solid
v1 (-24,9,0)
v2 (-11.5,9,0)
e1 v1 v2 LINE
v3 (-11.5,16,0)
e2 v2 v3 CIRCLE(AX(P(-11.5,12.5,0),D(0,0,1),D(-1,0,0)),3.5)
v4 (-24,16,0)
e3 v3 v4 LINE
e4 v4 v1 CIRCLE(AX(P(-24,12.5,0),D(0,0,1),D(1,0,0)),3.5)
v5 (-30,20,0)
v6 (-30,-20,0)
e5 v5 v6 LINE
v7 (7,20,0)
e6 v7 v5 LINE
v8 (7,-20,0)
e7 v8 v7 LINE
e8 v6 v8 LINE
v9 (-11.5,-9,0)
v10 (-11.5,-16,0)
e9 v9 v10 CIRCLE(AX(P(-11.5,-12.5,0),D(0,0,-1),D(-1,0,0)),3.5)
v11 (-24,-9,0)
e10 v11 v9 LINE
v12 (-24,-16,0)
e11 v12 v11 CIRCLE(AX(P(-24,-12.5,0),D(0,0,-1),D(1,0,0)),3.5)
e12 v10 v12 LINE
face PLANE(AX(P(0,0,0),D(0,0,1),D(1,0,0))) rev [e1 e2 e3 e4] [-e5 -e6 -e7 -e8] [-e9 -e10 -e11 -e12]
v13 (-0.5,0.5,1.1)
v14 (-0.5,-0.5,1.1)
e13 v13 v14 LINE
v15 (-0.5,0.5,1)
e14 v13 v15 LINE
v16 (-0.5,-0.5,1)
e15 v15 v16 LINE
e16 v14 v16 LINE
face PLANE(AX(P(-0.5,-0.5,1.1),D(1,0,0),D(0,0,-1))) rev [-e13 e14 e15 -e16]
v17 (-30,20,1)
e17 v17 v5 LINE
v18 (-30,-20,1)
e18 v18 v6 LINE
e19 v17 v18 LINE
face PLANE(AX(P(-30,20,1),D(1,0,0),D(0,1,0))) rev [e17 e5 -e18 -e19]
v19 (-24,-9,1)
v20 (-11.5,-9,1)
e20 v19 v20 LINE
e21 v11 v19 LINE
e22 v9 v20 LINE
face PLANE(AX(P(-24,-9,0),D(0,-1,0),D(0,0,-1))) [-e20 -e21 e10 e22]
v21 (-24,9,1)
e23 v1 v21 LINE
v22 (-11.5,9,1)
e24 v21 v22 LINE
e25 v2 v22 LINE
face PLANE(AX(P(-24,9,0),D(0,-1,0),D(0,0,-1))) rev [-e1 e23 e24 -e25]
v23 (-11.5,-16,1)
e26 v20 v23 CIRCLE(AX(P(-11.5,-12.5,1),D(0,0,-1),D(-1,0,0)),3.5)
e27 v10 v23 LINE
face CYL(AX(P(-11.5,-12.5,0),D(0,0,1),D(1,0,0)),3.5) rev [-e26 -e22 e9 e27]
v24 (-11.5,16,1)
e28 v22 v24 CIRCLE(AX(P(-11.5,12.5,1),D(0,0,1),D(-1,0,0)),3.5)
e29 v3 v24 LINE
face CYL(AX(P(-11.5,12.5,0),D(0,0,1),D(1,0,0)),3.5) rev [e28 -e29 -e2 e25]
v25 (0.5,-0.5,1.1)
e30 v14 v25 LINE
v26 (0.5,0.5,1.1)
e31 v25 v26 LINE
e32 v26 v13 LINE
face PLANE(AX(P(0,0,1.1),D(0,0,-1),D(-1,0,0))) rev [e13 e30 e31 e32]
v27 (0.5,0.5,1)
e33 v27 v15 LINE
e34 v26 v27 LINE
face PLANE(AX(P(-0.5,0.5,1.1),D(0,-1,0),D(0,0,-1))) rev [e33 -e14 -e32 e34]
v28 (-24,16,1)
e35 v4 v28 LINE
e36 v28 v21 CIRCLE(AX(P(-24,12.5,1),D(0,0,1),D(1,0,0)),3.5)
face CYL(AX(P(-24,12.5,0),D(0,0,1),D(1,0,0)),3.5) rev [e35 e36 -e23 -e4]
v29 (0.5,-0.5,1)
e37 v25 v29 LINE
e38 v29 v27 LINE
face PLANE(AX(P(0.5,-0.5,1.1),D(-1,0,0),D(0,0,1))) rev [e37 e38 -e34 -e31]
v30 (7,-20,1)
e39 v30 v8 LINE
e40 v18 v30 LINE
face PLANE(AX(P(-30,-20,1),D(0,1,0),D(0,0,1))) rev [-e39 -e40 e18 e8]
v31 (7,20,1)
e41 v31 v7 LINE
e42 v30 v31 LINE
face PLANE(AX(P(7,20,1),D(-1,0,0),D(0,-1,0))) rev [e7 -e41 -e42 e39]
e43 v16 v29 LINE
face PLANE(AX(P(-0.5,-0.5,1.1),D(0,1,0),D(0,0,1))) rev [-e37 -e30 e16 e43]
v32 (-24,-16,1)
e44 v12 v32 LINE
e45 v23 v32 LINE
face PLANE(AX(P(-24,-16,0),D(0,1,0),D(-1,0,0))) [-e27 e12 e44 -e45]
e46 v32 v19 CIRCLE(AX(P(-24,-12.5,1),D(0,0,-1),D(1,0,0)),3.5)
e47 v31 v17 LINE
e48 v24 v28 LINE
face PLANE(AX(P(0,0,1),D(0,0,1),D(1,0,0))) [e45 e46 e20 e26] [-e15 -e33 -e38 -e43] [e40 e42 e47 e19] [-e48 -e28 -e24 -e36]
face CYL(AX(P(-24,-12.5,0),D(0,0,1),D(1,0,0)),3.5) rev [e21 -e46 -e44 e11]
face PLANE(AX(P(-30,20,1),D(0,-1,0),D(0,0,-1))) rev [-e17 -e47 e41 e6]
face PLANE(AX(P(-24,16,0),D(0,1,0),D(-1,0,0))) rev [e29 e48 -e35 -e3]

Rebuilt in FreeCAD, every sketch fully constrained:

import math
import FreeCAD as App
import Part
import Sketcher

V = App.Vector

doc = App.newDocument("Part")
body = doc.addObject("PartDesign::Body", "Body")

sketch1 = doc.addObject("Sketcher::SketchObject", "Sketch")
body.addObject(sketch1)
sketch1.AttachmentSupport = (doc.XY_Plane, [""])
sketch1.MapMode = "FlatFace"
sketch1.addGeometry([
    Part.LineSegment(V(-30, 20, 0), V(-30, -20, 0)),
    Part.LineSegment(V(-30, -20, 0), V(7, -20, 0)),
    Part.LineSegment(V(7, -20, 0), V(7, 20, 0)),
    Part.LineSegment(V(7, 20, 0), V(-30, 20, 0)),
], False)
sketch1.addConstraint([
    Sketcher.Constraint("Coincident", 0, 2, 1, 1),
    Sketcher.Constraint("Coincident", 1, 2, 2, 1),
    Sketcher.Constraint("Coincident", 2, 2, 3, 1),
    Sketcher.Constraint("Coincident", 3, 2, 0, 1),
    Sketcher.Constraint("Vertical", 0),
    Sketcher.Constraint("Horizontal", 1),
    Sketcher.Constraint("Vertical", 2),
    Sketcher.Constraint("Horizontal", 3),
    Sketcher.Constraint("DistanceX", 1, 1, 1, 2, 37.0),
    Sketcher.Constraint("DistanceY", 0, 2, 0, 1, 40.0),
    Sketcher.Constraint("DistanceX", 0, 2, -1, 1, 30.0),
    Sketcher.Constraint("DistanceY", 0, 2, -1, 1, 20.0),
])
pad1 = doc.addObject("PartDesign::Pad", "Pad")
body.addObject(pad1)
pad1.Profile = sketch1
pad1.Length = 1

sketch2 = doc.addObject("Sketcher::SketchObject", "Sketch001")
body.addObject(sketch2)
sketch2.AttachmentSupport = (doc.XY_Plane, [""])
sketch2.MapMode = "FlatFace"
sketch2.AttachmentOffset = App.Placement(V(0, 0, 1), App.Rotation())
sketch2.addGeometry([
    Part.LineSegment(V(-0.5, 0.5, 0), V(-0.5, -0.5, 0)),
    Part.LineSegment(V(-0.5, -0.5, 0), V(0.5, -0.5, 0)),
    Part.LineSegment(V(0.5, -0.5, 0), V(0.5, 0.5, 0)),
    Part.LineSegment(V(0.5, 0.5, 0), V(-0.5, 0.5, 0)),
], False)
sketch2.addConstraint([
    Sketcher.Constraint("Coincident", 0, 2, 1, 1),
    Sketcher.Constraint("Coincident", 1, 2, 2, 1),
    Sketcher.Constraint("Coincident", 2, 2, 3, 1),
    Sketcher.Constraint("Coincident", 3, 2, 0, 1),
    Sketcher.Constraint("Vertical", 0),
    Sketcher.Constraint("Horizontal", 1),
    Sketcher.Constraint("Vertical", 2),
    Sketcher.Constraint("Horizontal", 3),
    Sketcher.Constraint("Symmetric", 0, 2, 2, 2, -1, 1),
    Sketcher.Constraint("Equal", 3, 0),
    Sketcher.Constraint("DistanceX", 1, 1, 1, 2, 1.0),
])
pad2 = doc.addObject("PartDesign::Pad", "Pad001")
body.addObject(pad2)
pad2.Profile = sketch2
pad2.Length = 0.1

sketch3 = doc.addObject("Sketcher::SketchObject", "Sketch002")
body.addObject(sketch3)
sketch3.AttachmentSupport = (doc.XY_Plane, [""])
sketch3.MapMode = "FlatFace"
sketch3.AttachmentOffset = App.Placement(V(0, 0, 1), App.Rotation())
sketch3.addGeometry([
    Part.LineSegment(V(-11.5, 16, 0), V(-24, 16, 0)),
    Part.ArcOfCircle(Part.Circle(V(-24, 12.5, 0), V(0, 0, 1), 3.5), math.radians(90), math.radians(270)),
    Part.LineSegment(V(-24, 9, 0), V(-11.5, 9, 0)),
    Part.ArcOfCircle(Part.Circle(V(-11.5, 12.5, 0), V(0, 0, 1), 3.5), math.radians(-90), math.radians(90)),
], False)
sketch3.addConstraint([
    Sketcher.Constraint("Tangent", 0, 2, 1, 1),
    Sketcher.Constraint("Tangent", 1, 2, 2, 1),
    Sketcher.Constraint("Tangent", 2, 2, 3, 1),
    Sketcher.Constraint("Tangent", 3, 2, 0, 1),
    Sketcher.Constraint("Horizontal", 0),
    Sketcher.Constraint("Horizontal", 2),
    Sketcher.Constraint("Radius", 1, 3.5),
    Sketcher.Constraint("DistanceX", 0, 2, 0, 1, 12.5),
    Sketcher.Constraint("DistanceX", 1, 3, -1, 1, 24.0),
    Sketcher.Constraint("DistanceY", -1, 1, 0, 2, 16.0),
])
pocket1 = doc.addObject("PartDesign::Pocket", "Pocket")
body.addObject(pocket1)
pocket1.Profile = sketch3
pocket1.Type = "ThroughAll"
doc.recompute()

mirrored = doc.addObject("PartDesign::Mirrored", "Mirrored")
body.addObject(mirrored)
mirrored.Originals = [pocket1]
mirrored.MirrorPlane = (doc.XZ_Plane, [""])
body.Tip = mirrored

doc.recompute()
